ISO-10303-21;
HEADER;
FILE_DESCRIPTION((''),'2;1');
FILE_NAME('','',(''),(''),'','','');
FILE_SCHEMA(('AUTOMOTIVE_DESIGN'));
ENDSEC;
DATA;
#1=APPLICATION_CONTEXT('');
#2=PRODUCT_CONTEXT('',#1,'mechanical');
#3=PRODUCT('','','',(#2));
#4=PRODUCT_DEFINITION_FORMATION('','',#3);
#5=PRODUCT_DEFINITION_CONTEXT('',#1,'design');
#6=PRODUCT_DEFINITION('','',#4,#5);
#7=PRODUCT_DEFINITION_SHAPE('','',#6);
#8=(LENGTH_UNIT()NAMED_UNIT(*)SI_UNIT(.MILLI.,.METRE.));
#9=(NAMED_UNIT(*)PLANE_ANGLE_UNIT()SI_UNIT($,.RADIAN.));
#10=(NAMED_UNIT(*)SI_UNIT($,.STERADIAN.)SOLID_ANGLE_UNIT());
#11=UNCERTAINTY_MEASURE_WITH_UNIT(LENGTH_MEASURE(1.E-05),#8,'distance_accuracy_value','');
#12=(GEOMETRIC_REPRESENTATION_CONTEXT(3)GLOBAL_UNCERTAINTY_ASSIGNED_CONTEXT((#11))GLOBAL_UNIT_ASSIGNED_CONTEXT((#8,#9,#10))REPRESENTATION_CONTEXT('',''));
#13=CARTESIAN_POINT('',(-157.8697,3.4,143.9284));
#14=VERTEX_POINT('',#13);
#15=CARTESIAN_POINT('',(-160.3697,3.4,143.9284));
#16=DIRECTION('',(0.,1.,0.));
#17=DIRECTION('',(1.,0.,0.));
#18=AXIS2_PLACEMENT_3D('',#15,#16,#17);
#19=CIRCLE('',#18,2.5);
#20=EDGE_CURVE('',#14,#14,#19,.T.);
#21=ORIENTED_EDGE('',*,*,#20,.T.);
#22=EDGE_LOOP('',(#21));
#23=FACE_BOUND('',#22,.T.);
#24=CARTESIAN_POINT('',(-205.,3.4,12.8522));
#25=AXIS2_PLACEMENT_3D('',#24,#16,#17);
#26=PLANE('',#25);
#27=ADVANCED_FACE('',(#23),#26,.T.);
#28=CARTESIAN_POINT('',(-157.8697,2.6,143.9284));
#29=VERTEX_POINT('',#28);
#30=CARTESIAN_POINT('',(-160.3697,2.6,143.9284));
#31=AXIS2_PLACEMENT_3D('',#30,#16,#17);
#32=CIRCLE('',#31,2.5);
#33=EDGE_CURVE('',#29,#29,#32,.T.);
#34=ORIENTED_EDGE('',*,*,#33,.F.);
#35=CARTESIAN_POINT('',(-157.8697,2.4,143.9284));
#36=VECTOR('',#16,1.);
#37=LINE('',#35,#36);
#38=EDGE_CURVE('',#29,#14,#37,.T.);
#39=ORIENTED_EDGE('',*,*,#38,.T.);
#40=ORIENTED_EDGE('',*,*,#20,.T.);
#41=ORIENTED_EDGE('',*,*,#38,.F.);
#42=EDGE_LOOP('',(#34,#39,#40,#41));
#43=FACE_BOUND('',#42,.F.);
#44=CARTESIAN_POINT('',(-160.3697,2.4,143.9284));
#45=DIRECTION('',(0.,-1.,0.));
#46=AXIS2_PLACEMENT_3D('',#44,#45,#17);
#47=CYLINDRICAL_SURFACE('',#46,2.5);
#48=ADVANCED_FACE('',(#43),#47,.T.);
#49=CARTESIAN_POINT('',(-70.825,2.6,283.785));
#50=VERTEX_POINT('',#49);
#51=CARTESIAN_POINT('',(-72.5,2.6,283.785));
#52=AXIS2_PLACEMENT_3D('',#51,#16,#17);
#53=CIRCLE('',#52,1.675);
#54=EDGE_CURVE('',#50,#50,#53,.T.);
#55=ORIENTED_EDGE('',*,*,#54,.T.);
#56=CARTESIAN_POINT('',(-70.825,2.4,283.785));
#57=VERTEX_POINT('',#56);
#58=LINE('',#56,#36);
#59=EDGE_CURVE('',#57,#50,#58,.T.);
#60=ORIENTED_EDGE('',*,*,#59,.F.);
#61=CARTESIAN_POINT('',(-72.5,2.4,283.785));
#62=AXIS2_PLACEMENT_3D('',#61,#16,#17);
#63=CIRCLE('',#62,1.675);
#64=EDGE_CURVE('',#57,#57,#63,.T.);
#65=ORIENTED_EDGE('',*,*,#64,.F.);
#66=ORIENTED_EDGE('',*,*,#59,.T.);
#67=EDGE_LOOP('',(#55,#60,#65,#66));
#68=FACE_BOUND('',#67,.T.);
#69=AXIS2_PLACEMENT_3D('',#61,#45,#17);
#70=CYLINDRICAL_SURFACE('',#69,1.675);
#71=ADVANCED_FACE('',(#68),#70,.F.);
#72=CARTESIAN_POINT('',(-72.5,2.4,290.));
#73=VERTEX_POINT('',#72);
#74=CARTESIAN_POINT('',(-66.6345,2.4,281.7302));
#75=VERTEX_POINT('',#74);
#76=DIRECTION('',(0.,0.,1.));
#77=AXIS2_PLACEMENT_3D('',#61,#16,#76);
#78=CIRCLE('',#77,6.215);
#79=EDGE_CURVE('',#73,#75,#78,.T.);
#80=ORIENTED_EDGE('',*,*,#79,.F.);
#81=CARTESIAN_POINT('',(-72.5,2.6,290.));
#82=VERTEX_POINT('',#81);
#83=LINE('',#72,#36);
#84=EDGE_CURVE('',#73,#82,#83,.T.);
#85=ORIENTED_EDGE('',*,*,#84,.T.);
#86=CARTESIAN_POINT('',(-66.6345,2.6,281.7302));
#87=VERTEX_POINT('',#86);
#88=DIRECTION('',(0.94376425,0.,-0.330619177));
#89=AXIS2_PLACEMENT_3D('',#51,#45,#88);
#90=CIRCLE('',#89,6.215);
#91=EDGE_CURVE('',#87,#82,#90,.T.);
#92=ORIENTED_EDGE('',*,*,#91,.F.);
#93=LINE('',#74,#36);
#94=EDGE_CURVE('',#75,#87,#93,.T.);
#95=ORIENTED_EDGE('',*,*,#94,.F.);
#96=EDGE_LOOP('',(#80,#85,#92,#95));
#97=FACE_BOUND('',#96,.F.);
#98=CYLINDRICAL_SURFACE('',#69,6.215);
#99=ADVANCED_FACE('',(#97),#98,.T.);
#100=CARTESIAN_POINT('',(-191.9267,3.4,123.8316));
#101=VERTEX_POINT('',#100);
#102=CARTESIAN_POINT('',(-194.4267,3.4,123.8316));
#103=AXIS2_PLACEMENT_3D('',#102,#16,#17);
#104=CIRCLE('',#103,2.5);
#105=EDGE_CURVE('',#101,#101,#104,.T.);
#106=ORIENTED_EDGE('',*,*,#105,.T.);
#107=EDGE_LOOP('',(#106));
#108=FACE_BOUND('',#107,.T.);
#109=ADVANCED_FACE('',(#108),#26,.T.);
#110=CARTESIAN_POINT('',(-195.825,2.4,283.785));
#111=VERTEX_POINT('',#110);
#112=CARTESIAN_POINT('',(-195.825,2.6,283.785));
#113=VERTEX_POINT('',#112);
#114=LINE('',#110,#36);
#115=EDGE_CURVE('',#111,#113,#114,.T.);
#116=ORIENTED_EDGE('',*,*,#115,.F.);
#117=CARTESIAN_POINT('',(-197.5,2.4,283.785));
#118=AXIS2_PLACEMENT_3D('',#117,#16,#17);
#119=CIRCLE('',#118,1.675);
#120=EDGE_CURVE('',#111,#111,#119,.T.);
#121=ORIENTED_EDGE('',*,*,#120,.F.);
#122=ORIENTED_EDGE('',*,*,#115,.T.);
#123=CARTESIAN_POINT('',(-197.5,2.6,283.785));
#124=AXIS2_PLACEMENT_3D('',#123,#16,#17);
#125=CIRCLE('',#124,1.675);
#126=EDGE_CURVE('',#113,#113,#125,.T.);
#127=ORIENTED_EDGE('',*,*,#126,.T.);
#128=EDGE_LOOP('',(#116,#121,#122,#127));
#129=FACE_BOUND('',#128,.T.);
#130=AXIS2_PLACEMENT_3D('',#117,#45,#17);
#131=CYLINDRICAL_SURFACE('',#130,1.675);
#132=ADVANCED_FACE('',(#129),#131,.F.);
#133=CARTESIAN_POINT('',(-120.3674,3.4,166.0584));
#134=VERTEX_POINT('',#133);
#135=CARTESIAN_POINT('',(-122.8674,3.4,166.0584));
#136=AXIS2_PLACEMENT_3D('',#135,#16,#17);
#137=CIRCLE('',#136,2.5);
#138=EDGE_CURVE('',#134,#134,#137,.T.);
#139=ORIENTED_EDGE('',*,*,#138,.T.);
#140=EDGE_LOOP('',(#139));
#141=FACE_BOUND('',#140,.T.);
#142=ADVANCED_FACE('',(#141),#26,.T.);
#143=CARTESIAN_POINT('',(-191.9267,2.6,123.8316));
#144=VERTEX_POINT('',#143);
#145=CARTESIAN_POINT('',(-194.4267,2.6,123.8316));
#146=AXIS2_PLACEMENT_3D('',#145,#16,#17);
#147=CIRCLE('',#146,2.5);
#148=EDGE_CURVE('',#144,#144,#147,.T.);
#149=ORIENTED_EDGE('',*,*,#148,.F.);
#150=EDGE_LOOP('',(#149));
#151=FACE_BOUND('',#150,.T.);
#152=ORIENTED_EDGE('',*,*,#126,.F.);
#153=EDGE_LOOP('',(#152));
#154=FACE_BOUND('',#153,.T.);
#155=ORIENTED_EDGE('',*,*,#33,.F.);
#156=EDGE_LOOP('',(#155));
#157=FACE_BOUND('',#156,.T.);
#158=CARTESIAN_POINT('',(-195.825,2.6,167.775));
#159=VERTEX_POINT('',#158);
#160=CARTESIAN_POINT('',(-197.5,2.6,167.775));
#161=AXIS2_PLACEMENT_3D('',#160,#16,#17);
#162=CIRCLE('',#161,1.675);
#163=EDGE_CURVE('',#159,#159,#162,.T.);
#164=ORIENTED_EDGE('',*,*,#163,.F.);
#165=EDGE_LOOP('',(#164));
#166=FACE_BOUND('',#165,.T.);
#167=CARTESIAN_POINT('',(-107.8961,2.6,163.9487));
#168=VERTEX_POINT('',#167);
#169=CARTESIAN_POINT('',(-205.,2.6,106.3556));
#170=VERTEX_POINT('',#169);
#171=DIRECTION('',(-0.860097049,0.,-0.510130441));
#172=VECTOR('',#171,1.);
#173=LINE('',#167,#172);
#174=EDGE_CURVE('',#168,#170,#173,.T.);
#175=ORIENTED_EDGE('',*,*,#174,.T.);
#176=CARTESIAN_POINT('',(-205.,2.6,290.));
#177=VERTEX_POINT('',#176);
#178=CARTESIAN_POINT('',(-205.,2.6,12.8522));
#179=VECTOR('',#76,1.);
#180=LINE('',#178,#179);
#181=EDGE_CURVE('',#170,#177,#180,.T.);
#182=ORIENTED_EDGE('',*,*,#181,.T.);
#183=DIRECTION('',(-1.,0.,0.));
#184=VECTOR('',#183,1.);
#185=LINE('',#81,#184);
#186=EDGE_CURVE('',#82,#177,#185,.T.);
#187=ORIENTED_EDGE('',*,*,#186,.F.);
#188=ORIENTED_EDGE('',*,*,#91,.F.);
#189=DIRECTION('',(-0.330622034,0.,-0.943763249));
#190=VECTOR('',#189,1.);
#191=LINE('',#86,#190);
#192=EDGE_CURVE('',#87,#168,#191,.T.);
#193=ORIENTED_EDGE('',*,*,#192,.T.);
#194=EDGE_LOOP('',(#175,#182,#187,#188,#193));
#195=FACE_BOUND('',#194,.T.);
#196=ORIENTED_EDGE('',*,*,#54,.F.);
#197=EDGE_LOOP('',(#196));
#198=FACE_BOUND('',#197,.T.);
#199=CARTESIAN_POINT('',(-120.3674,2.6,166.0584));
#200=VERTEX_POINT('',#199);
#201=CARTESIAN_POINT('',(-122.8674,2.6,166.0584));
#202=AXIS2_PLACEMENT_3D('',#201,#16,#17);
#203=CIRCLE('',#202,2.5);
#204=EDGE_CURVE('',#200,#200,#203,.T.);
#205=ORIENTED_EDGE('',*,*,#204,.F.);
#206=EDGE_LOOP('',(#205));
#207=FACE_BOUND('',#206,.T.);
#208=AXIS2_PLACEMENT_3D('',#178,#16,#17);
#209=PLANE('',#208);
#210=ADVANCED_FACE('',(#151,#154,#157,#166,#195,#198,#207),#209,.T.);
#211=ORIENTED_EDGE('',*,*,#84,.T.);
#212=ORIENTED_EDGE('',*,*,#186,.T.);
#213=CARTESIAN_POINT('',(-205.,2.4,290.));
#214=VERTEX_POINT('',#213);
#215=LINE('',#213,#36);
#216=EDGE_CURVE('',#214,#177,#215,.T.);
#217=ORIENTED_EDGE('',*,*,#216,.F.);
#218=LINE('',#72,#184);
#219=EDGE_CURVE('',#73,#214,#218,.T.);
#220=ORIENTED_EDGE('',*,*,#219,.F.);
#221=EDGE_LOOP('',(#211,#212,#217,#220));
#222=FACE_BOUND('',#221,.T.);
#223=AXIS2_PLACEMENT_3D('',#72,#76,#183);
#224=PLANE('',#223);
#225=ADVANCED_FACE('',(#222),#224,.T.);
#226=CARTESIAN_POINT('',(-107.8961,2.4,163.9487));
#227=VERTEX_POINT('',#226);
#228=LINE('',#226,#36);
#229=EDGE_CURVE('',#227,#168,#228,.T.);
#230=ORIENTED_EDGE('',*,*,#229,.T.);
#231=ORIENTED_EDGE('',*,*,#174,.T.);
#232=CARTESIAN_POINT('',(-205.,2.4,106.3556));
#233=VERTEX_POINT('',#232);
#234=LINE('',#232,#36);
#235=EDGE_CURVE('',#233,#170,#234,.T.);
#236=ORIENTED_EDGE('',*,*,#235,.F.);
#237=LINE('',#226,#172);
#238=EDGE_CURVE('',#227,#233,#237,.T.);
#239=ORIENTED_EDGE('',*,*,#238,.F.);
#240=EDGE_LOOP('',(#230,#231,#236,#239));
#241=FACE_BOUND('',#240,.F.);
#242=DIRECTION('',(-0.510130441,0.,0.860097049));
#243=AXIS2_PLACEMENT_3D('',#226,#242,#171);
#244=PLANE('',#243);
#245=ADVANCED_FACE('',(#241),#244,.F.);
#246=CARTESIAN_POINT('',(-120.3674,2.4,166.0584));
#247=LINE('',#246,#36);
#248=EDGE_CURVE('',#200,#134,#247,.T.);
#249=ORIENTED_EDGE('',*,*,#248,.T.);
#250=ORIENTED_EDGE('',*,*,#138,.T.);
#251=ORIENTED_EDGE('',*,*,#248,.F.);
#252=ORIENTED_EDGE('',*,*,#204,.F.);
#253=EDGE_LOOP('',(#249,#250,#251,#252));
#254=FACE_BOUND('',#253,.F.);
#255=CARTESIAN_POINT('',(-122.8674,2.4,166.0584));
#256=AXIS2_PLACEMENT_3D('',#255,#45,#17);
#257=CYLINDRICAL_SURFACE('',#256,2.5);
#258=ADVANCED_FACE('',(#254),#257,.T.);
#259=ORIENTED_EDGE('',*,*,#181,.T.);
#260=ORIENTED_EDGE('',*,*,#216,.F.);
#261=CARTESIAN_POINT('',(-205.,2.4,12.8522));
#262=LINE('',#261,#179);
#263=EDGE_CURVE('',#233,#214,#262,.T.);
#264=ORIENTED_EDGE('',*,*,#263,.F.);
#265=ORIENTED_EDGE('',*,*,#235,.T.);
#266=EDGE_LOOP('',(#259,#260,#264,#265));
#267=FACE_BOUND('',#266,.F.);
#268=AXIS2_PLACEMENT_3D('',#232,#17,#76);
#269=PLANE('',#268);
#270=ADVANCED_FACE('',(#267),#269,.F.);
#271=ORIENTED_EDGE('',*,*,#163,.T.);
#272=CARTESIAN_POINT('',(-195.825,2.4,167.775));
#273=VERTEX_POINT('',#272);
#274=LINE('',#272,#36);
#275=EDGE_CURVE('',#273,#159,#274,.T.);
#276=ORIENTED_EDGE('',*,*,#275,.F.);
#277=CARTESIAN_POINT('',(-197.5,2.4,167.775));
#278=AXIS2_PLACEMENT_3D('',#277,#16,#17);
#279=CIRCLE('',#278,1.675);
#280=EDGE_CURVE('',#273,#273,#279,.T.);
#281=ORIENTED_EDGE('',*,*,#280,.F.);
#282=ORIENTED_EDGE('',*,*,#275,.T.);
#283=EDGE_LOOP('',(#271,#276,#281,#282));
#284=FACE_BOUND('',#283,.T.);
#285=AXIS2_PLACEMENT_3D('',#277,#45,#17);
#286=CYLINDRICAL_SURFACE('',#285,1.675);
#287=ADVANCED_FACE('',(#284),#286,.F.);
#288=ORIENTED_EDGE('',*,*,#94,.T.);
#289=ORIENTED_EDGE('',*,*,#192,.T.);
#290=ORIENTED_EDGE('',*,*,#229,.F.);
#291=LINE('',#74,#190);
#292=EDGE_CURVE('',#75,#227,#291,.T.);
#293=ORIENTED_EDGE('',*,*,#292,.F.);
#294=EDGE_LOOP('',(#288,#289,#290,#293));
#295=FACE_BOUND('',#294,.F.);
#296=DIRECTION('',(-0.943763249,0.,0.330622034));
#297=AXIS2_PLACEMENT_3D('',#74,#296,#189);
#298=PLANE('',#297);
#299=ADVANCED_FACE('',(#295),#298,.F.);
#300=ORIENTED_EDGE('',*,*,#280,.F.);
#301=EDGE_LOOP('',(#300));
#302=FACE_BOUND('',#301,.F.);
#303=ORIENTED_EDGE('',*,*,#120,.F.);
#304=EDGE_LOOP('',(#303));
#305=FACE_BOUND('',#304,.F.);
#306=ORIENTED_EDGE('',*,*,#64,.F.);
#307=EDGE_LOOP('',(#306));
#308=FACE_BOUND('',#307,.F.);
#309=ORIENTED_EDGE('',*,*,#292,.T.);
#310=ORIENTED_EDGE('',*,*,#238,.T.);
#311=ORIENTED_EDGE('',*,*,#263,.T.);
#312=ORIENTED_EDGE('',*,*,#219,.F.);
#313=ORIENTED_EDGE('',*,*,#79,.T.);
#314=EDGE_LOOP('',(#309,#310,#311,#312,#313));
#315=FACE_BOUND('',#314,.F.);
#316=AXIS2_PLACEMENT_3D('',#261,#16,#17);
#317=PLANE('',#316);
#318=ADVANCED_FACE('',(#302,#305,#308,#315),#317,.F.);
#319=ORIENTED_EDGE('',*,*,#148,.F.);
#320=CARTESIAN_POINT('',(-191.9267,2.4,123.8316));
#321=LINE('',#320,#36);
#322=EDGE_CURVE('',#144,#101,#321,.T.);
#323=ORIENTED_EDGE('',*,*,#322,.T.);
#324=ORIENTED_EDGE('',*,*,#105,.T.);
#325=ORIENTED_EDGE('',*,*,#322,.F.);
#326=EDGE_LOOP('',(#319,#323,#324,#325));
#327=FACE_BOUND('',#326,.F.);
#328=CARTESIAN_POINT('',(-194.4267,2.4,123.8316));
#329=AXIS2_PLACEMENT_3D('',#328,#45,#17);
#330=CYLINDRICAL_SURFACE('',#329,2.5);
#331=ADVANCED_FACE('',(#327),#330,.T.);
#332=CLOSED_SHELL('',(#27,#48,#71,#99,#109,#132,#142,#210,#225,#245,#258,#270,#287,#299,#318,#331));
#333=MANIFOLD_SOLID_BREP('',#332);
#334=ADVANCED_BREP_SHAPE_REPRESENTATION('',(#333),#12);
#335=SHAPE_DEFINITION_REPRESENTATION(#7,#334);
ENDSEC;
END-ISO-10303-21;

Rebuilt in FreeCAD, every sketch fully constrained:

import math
import FreeCAD as App
import Part
import Sketcher

doc = App.newDocument("Part")
body = doc.addObject("PartDesign::Body", "Body")

# Sketch on XZ plane
sketch1 = doc.addObject("Sketcher::SketchObject", "Sketch")
body.addObject(sketch1)
sketch1.AttachmentSupport = (doc.XZ_Plane, [""])
sketch1.MapMode = "FlatFace"
sketch1.AttachmentOffset = App.Placement(App.Vector(0, 0, -2.4), App.Rotation())
sketch1.addGeometry(Part.LineSegment(App.Vector(-205, 290, 0), App.Vector(-72.5, 290, 0)), False)
sketch1.addGeometry(Part.ArcOfCircle(Part.Circle(App.Vector(-72.5, 283.8, 0), App.Vector(0, 0, 1), 6.2), math.radians(-19), math.radians(90)), False)
sketch1.addGeometry(Part.LineSegment(App.Vector(-66.6, 281.7, 0), App.Vector(-107.9, 163.9, 0)), False)
sketch1.addGeometry(Part.LineSegment(App.Vector(-107.9, 163.9, 0), App.Vector(-205, 106.4, 0)), False)
sketch1.addGeometry(Part.LineSegment(App.Vector(-205, 106.4, 0), App.Vector(-205, 290, 0)), False)
sketch1.addGeometry(Part.Circle(App.Vector(-197.5, 283.8, 0), App.Vector(0, 0, 1), 1.7), False)
sketch1.addGeometry(Part.Circle(App.Vector(-197.5, 167.8, 0), App.Vector(0, 0, 1), 1.7), False)
sketch1.addGeometry(Part.Circle(App.Vector(-194.4, 123.8, 0), App.Vector(0, 0, 1), 2.5), False)
sketch1.addGeometry(Part.Circle(App.Vector(-160.4, 143.9, 0), App.Vector(0, 0, 1), 2.5), False)
sketch1.addGeometry(Part.Circle(App.Vector(-122.9, 166.1, 0), App.Vector(0, 0, 1), 2.5), False)
sketch1.addGeometry(Part.Circle(App.Vector(-72.5, 283.8, 0), App.Vector(0, 0, 1), 1.7), False)
sketch1.addConstraint(Sketcher.Constraint("Tangent", 0, 2, 1, 2))
sketch1.addConstraint(Sketcher.Constraint("Tangent", 1, 1, 2, 1))
sketch1.addConstraint(Sketcher.Constraint("Coincident", 2, 2, 3, 1))
sketch1.addConstraint(Sketcher.Constraint("Coincident", 3, 2, 4, 1))
sketch1.addConstraint(Sketcher.Constraint("Coincident", 4, 2, 0, 1))
sketch1.addConstraint(Sketcher.Constraint("Horizontal", 0))
sketch1.addConstraint(Sketcher.Constraint("Vertical", 4))
sketch1.addConstraint(Sketcher.Constraint("Coincident", 10, 3, 1, 3))
sketch1.addConstraint(Sketcher.Constraint("Equal", 5, 6))
sketch1.addConstraint(Sketcher.Constraint("Equal", 7, 8))
sketch1.addConstraint(Sketcher.Constraint("Equal", 8, 9))
sketch1.addConstraint(Sketcher.Constraint("Equal", 6, 10))
sketch1.addConstraint(Sketcher.Constraint("Horizontal", 1, 3, 5, 3))
sketch1.addConstraint(Sketcher.Constraint("Vertical", 5, 3, 6, 3))
sketch1.addConstraint(Sketcher.Constraint("Diameter", 7, 5.0))
sketch1.addConstraint(Sketcher.Constraint("Diameter", 5, 3.35))
sketch1.addConstraint(Sketcher.Constraint("DistanceX", 0, 1, 0, 2, 132.5))
sketch1.addConstraint(Sketcher.Constraint("DistanceY", -1, 1, 0, 2, 290.0))
sketch1.addConstraint(Sketcher.Constraint("DistanceX", 3, 2, -1, 1, 205.0))
sketch1.addConstraint(Sketcher.Constraint("Radius", 1, 6.215))
sketch1.addConstraint(Sketcher.Constraint("DistanceX", 5, 3, 1, 3, 125.0))
sketch1.addConstraint(Sketcher.Constraint("DistanceY", 6, 3, 5, 3, 116.01))
sketch1.addConstraint(Sketcher.Constraint("DistanceY", 8, 3, 9, 3, 22.13))
sketch1.addConstraint(Sketcher.Constraint("DistanceY", 4, 1, 4, 2, 183.6444))
sketch1.addConstraint(Sketcher.Constraint("DistanceX", 2, 2, -1, 1, 107.896))
sketch1.addConstraint(Sketcher.Constraint("DistanceX", 7, 3, 8, 3, 34.057))
sketch1.addConstraint(Sketcher.Constraint("DistanceX", 9, 3, 1, 1, 56.233))
sketch1.addConstraint(Sketcher.Constraint("DistanceY", 7, 3, 2, 2, 40.117))
sketch1.addConstraint(Sketcher.Constraint("DistanceY", 3, 2, 7, 3, 17.476))
sketch1.addConstraint(Sketcher.Constraint("DistanceX", 7, 3, -1, 1, 194.4267))
sketch1.addConstraint(Sketcher.Constraint("DistanceY", -1, 1, 8, 3, 143.9284))
pad1 = doc.addObject("PartDesign::Pad", "Pad")
body.addObject(pad1)
pad1.Profile = sketch1
pad1.Length = 0.2
pad1.Reversed = True

# Sketch on XZ plane
sketch2 = doc.addObject("Sketcher::SketchObject", "Sketch001")
body.addObject(sketch2)
sketch2.AttachmentSupport = (doc.XZ_Plane, [""])
sketch2.MapMode = "FlatFace"
sketch2.AttachmentOffset = App.Placement(App.Vector(0, 0, -2.4), App.Rotation())
sketch2.addGeometry(Part.Circle(App.Vector(-122.9, 166.1, 0), App.Vector(0, 0, 1), 2.5), False)
sketch2.addGeometry(Part.Circle(App.Vector(-160.4, 143.9, 0), App.Vector(0, 0, 1), 2.5), False)
sketch2.addGeometry(Part.Circle(App.Vector(-194.4, 123.8, 0), App.Vector(0, 0, 1), 2.5), False)
sketch2.addConstraint(Sketcher.Constraint("Equal", 0, 1))
sketch2.addConstraint(Sketcher.Constraint("Equal", 1, 2))
sketch2.addConstraint(Sketcher.Constraint("Diameter", 0, 5.0))
sketch2.addConstraint(Sketcher.Constraint("DistanceY", 1, 3, 0, 3, 22.13))
sketch2.addConstraint(Sketcher.Constraint("DistanceX", 2, 3, 1, 3, 34.057))
sketch2.addConstraint(Sketcher.Constraint("DistanceX", 0, 3, -1, 1, 122.8674))
sketch2.addConstraint(Sketcher.Constraint("DistanceY", -1, 1, 0, 3, 166.0584))
sketch2.addConstraint(Sketcher.Constraint("DistanceX", 1, 3, -1, 1, 160.3697))
sketch2.addConstraint(Sketcher.Constraint("DistanceY", -1, 1, 2, 3, 123.8316))
pad2 = doc.addObject("PartDesign::Pad", "Pad001")
body.addObject(pad2)
pad2.Profile = sketch2
pad2.Length = 1
pad2.Reversed = True

doc.recompute()
